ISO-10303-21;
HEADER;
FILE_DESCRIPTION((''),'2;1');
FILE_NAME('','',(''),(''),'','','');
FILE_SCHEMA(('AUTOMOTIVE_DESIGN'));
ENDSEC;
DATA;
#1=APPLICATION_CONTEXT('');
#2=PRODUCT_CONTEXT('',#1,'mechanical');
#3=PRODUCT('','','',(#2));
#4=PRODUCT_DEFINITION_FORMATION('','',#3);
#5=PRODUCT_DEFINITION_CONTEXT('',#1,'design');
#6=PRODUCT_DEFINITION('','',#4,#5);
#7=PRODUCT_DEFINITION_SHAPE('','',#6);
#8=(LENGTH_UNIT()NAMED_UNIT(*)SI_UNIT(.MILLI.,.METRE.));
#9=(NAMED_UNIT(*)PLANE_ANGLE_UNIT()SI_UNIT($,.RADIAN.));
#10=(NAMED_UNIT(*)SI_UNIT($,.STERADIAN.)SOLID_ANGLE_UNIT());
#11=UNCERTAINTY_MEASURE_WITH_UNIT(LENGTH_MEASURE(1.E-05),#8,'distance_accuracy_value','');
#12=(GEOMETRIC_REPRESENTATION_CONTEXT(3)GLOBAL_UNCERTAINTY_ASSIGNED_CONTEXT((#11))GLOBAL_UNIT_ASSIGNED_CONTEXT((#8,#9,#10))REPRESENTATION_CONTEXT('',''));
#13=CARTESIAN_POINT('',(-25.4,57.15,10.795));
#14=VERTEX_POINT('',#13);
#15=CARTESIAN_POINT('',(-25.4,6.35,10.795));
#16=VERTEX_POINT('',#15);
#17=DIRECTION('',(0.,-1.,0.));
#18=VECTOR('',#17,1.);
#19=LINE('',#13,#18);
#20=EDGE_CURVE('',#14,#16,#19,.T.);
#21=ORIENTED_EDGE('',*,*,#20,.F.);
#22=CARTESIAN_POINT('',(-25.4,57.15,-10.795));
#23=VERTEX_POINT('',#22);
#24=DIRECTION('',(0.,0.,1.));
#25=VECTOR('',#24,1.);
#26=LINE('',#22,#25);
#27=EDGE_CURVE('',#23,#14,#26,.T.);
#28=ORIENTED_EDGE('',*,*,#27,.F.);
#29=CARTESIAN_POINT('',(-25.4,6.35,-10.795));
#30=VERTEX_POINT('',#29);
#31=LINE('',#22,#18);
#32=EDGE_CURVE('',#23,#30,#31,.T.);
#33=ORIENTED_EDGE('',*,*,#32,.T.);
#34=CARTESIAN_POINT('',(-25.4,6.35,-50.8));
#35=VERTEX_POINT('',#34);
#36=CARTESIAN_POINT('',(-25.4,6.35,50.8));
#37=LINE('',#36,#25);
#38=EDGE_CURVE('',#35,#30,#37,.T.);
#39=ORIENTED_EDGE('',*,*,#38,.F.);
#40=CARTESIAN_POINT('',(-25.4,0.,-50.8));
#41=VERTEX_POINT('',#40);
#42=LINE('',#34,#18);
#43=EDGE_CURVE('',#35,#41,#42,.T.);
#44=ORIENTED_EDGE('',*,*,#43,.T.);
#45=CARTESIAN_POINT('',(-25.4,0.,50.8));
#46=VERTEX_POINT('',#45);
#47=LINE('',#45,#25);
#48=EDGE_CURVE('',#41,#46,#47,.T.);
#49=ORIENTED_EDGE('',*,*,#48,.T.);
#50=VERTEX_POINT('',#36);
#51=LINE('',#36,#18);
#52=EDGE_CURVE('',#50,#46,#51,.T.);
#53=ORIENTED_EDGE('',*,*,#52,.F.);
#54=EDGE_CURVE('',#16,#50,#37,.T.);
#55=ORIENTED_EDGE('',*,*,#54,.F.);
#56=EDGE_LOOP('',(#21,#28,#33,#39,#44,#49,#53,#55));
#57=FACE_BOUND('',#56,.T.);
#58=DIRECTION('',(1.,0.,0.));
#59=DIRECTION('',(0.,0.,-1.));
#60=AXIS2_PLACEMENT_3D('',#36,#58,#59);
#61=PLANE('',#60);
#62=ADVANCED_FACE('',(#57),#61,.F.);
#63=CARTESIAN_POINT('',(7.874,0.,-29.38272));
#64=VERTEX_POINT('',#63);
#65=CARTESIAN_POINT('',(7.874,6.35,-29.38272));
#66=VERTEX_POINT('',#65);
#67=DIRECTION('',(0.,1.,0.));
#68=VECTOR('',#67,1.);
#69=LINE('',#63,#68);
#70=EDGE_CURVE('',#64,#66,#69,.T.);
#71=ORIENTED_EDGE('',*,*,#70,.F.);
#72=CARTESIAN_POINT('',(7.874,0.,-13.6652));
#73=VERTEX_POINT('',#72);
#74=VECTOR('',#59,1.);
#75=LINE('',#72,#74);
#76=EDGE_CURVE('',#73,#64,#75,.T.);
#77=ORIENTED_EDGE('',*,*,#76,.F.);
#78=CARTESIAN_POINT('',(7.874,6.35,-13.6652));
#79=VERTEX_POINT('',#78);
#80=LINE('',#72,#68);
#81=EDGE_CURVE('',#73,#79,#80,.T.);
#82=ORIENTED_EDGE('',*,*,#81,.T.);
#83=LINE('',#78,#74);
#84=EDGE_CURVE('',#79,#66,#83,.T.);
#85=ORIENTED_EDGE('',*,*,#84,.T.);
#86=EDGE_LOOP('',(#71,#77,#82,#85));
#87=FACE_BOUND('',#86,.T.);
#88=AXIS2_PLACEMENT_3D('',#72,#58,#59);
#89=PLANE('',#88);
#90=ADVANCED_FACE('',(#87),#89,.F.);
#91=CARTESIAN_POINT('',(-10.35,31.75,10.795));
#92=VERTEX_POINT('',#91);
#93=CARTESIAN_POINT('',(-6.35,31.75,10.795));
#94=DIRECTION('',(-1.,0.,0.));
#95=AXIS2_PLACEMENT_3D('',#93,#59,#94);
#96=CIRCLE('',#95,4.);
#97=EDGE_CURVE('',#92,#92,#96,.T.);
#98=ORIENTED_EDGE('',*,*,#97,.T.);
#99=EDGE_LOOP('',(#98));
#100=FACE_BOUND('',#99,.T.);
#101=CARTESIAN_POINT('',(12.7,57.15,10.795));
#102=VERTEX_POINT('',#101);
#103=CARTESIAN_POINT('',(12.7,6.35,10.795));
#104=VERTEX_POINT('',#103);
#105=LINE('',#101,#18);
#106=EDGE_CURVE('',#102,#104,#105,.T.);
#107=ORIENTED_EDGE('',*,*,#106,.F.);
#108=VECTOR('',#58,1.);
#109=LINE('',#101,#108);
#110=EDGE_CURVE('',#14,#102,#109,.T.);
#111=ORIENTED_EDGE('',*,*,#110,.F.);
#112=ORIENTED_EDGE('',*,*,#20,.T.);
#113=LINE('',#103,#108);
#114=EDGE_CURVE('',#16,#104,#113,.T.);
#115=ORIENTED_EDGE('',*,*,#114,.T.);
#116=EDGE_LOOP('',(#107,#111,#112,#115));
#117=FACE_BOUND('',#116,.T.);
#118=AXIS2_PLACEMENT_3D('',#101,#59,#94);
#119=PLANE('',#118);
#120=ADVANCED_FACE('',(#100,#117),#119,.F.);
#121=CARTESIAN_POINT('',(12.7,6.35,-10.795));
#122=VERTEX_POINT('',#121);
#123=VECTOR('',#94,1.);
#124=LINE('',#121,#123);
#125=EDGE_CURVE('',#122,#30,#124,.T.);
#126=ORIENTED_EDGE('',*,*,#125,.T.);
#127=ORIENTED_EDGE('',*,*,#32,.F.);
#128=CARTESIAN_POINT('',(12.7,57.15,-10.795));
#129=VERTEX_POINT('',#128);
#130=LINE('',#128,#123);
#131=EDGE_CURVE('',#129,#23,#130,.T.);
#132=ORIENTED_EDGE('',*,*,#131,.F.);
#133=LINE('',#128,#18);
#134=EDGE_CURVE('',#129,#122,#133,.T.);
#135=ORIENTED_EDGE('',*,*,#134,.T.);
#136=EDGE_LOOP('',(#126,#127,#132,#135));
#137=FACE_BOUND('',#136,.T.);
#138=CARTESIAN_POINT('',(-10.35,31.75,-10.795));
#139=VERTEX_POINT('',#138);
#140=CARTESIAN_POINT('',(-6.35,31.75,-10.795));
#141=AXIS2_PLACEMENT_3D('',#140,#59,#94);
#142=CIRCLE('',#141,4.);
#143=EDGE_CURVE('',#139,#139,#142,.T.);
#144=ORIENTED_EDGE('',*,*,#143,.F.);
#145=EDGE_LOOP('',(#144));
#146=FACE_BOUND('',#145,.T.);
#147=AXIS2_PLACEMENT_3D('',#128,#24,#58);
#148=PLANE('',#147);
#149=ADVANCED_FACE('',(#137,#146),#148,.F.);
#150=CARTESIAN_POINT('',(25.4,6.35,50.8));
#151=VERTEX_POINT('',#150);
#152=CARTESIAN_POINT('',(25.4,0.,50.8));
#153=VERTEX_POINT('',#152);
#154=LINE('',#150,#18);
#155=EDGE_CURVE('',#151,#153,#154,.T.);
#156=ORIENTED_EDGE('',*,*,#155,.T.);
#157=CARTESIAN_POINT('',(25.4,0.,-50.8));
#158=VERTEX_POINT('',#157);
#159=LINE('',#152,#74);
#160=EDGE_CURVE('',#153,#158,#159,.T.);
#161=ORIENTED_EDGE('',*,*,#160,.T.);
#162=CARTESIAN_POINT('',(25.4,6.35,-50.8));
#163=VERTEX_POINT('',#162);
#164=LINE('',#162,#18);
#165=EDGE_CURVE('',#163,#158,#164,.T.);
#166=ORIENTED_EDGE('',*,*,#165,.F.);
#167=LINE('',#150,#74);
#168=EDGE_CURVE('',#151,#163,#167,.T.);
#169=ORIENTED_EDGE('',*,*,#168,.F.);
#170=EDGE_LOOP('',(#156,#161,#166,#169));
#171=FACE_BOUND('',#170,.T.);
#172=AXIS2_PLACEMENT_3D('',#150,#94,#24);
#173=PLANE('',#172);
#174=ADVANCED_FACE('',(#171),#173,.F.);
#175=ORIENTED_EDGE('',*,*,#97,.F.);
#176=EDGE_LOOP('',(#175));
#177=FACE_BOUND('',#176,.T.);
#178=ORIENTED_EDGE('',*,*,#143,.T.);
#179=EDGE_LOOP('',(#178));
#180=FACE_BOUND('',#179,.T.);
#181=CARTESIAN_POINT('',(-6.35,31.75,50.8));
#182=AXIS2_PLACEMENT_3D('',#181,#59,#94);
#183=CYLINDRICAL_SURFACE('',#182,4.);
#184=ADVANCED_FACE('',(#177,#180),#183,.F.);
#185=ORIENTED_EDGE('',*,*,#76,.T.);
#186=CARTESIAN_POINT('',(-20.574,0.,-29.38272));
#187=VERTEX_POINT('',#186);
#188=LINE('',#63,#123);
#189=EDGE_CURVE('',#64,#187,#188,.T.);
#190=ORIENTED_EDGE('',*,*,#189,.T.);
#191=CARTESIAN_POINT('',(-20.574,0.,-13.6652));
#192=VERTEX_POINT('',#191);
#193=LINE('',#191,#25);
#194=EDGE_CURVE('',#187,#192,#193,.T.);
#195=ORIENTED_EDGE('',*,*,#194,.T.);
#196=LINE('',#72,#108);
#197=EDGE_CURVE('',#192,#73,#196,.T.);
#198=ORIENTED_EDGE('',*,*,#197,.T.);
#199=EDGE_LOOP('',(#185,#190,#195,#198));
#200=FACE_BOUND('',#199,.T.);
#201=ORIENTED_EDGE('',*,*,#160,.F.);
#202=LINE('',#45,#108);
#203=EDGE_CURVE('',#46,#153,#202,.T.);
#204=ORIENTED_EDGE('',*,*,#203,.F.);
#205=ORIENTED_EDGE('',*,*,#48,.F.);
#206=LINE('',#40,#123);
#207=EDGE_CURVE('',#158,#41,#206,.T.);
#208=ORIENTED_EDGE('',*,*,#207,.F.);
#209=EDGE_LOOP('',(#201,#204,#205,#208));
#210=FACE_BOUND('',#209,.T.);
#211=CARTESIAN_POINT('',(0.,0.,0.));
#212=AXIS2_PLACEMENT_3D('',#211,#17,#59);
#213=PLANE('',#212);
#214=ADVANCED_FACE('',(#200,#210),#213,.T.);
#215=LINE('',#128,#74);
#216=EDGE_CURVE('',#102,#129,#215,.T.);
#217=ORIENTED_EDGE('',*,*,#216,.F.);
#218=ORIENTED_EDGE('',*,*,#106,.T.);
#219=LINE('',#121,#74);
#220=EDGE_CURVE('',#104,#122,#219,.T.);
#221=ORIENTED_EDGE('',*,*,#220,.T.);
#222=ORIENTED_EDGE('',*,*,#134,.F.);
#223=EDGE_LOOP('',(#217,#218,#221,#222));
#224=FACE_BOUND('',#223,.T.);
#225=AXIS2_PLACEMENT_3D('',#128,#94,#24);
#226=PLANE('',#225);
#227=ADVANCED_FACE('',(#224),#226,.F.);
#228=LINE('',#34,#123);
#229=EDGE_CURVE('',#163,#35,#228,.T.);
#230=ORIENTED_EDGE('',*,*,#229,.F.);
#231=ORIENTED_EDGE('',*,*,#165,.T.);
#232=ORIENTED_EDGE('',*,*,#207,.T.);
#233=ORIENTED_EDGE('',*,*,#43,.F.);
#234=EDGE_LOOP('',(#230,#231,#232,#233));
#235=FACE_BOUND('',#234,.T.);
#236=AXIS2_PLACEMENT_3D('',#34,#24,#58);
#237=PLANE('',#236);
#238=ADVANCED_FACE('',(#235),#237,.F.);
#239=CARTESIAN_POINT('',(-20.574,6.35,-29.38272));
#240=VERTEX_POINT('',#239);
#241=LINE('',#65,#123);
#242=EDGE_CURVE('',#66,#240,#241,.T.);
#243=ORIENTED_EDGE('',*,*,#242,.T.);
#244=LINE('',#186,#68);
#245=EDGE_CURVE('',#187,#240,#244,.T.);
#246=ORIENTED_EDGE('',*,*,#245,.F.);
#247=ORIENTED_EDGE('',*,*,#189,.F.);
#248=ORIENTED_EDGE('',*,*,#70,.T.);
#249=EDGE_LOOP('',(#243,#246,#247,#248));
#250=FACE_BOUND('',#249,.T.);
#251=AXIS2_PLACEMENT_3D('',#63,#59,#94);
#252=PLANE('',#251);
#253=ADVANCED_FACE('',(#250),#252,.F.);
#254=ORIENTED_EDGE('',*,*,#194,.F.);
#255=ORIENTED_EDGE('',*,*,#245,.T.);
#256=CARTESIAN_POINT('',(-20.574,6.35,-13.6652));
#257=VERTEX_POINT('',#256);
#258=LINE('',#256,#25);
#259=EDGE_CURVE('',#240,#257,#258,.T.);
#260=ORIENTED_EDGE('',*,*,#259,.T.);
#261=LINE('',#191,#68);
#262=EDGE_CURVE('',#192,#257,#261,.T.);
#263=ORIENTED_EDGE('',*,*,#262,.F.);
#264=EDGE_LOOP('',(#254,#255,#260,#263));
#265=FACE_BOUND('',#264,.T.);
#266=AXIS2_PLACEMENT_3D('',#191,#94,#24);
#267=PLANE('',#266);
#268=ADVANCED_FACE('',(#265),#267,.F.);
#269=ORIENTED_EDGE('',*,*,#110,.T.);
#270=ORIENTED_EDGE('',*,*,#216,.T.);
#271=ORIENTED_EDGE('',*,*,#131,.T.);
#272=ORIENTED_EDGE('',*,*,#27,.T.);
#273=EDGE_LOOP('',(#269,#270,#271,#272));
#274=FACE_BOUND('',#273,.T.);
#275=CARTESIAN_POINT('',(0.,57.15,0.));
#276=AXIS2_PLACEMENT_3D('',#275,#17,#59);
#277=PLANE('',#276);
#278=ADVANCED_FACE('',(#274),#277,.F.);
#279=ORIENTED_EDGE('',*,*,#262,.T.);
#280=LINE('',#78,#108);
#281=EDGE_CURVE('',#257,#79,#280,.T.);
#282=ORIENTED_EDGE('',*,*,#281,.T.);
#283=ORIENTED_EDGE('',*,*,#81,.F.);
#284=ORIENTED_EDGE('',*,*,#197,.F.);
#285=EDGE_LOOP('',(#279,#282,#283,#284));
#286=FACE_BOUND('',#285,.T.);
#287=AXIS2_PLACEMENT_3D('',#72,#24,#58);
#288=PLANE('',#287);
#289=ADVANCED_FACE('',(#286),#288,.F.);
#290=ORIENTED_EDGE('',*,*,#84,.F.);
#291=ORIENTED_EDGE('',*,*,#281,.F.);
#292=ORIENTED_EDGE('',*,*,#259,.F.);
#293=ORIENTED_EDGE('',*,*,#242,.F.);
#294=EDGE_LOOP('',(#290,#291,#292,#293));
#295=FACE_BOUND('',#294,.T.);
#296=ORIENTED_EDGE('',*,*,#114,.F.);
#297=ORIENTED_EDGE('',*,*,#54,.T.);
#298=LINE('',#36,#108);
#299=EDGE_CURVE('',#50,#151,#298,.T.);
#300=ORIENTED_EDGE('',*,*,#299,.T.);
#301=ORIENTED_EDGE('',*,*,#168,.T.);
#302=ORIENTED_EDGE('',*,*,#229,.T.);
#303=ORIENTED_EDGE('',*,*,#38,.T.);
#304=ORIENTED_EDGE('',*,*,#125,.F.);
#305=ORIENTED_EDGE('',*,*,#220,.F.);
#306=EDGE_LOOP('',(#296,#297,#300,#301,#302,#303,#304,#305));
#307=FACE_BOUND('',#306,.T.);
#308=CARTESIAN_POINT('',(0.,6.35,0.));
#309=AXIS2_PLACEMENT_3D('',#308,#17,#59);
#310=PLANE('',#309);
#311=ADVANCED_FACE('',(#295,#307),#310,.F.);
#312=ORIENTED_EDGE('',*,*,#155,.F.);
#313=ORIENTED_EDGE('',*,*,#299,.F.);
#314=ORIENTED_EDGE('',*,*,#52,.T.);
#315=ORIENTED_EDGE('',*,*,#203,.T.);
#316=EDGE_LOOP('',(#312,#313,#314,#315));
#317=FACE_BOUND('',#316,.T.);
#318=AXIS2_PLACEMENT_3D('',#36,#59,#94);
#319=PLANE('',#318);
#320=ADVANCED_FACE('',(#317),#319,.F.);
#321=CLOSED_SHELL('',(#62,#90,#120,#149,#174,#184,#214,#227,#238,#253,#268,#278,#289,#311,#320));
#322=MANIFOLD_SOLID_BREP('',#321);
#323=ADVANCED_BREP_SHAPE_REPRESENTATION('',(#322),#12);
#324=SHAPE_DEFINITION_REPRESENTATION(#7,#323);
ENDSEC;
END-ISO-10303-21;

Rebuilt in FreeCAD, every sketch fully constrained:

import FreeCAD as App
import Part
import Sketcher
from FreeCAD import Vector
Q = App.Units.Quantity


def add_polygon(sketch, points):
    """Adds a closed chain of lines whose ends are joined by coincident constraints."""
    first, n = sketch.GeometryCount, len(points)
    for a, b in zip(points, points[1:] + points[:1]):
        sketch.addGeometry(Part.LineSegment(App.Vector(*a, 0), App.Vector(*b, 0)), False)
    for i in range(n):
        sketch.addConstraint(Sketcher.Constraint("Coincident", first + i, 2, first + (i + 1) % n, 1))

doc = App.newDocument("Part")
params = doc.addObject("Spreadsheet::Sheet", "Params")
for row, (alias, value) in enumerate([
    ("sketch1_width", "2 in"),
    ("sketch1_height", "4 in"),
    ("pad1_length", "0.25 in"),
    ("sketch2_width", "1.5 in"),
    ("sketch2_height", "0.85 in"),
    ("pad2_length", "2 in"),
    ("sketch4_width", "1.12 in"),
], start=1):
    params.set(f"A{row}", alias)
    params.set(f"B{row}", "=" + value)
    params.setAlias(f"B{row}", alias)

body = doc.addObject("PartDesign::Body", "Body")

# Sketch on XZ plane
sketch1 = doc.addObject("Sketcher::SketchObject", "Sketch")
body.addObject(sketch1)
sketch1.AttachmentSupport = (doc.XZ_Plane, [""])
sketch1.MapMode = "FlatFace"
add_polygon(sketch1, [(-25, -51), (-25, 51), (25, 51), (25, -51)])  # lines 0-3
sketch1.addConstraint(Sketcher.Constraint("Vertical", 0))
sketch1.addConstraint(Sketcher.Constraint("Horizontal", 1))
sketch1.addConstraint(Sketcher.Constraint("Vertical", 2))
sketch1.addConstraint(Sketcher.Constraint("Horizontal", 3))
sketch1.addConstraint(Sketcher.Constraint("Symmetric", 0, 2, 2, 2, -1, 1))
sketch1.addConstraint(Sketcher.Constraint("DistanceX", 1, 1, 1, 2, Q("2 in")))
sketch1.addConstraint(Sketcher.Constraint("DistanceY", 0, 1, 0, 2, Q("4 in")))
sketch1.setExpression("Constraints[9]", "Params.sketch1_width")
sketch1.setExpression("Constraints[10]", "Params.sketch1_height")
pad1 = doc.addObject("PartDesign::Pad", "Pad")
body.addObject(pad1)
pad1.Profile = sketch1
pad1.setExpression("Length", "Params.pad1_length")
pad1.Reversed = True

# Sketch on XZ plane
sketch2 = doc.addObject("Sketcher::SketchObject", "Sketch001")
body.addObject(sketch2)
sketch2.AttachmentSupport = (doc.XZ_Plane, [""])
sketch2.MapMode = "FlatFace"
sketch2.AttachmentOffset = App.Placement(Vector(0, 0, -0.25 * 25.4), App.Rotation())
add_polygon(sketch2, [(-25, -11), (-25, 11), (13, 11), (13, -11)])  # lines 0-3
sketch2.addConstraint(Sketcher.Constraint("Vertical", 0))
sketch2.addConstraint(Sketcher.Constraint("Horizontal", 1))
sketch2.addConstraint(Sketcher.Constraint("Vertical", 2))
sketch2.addConstraint(Sketcher.Constraint("Horizontal", 3))
sketch2.addConstraint(Sketcher.Constraint("DistanceX", 1, 1, 1, 2, Q("1.5 in")))
sketch2.addConstraint(Sketcher.Constraint("DistanceX", 0, 2, -1, 1, Q("1 in")))
sketch2.addConstraint(Sketcher.Constraint("DistanceY", 0, 1, 0, 2, Q("0.85 in")))
sketch2.addConstraint(Sketcher.Constraint("DistanceY", -1, 1, 0, 2, Q("0.425 in")))
sketch2.setExpression("Constraints[8]", "Params.sketch2_width")
sketch2.setExpression("Constraints[10]", "Params.sketch2_height")
pad2 = doc.addObject("PartDesign::Pad", "Pad001")
body.addObject(pad2)
pad2.Profile = sketch2
pad2.setExpression("Length", "Params.pad2_length")
pad2.Reversed = True

# Sketch on XY plane
sketch3 = doc.addObject("Sketcher::SketchObject", "Sketch002")
body.addObject(sketch3)
sketch3.AttachmentSupport = (doc.XY_Plane, [""])
sketch3.MapMode = "FlatFace"
sketch3.AttachmentOffset = App.Placement(Vector(0, 0, -0.425 * 25.4), App.Rotation())
sketch3.addGeometry(Part.Circle(Vector(-6.3, 31.8, 0), Vector(0, 0, 1), 4), False)
sketch3.addConstraint(Sketcher.Constraint("Diameter", 0, Q("8 mm")))
sketch3.addConstraint(Sketcher.Constraint("DistanceX", 0, 3, -1, 1, Q("0.25 in")))
sketch3.addConstraint(Sketcher.Constraint("DistanceY", -1, 1, 0, 3, Q("1.25 in")))
pocket1 = doc.addObject("PartDesign::Pocket", "Pocket")
body.addObject(pocket1)
pocket1.Profile = sketch3
pocket1.Type = "ThroughAll"
pocket1.Reversed = True

# Sketch on XZ plane
sketch4 = doc.addObject("Sketcher::SketchObject", "Sketch003")
body.addObject(sketch4)
sketch4.AttachmentSupport = (doc.XZ_Plane, [""])
sketch4.MapMode = "FlatFace"
sketch4.AttachmentOffset = App.Placement(Vector(0, 0, -0.25 * 25.4), App.Rotation())
add_polygon(sketch4, [(-21, -29), (-21, -14), (8, -14), (8, -29)])  # lines 0-3
sketch4.addConstraint(Sketcher.Constraint("Vertical", 0))
sketch4.addConstraint(Sketcher.Constraint("Horizontal", 1))
sketch4.addConstraint(Sketcher.Constraint("Vertical", 2))
sketch4.addConstraint(Sketcher.Constraint("Horizontal", 3))
sketch4.addConstraint(Sketcher.Constraint("DistanceX", 1, 1, 1, 2, Q("1.12 in")))
sketch4.addConstraint(Sketcher.Constraint("DistanceX", 0, 2, -1, 1, Q("0.81 in")))
sketch4.addConstraint(Sketcher.Constraint("DistanceY", 0, 1, 0, 2, Q("0.6188 in")))
sketch4.addConstraint(Sketcher.Constraint("DistanceY", 0, 2, -1, 1, Q("0.538 in")))
sketch4.setExpression("Constraints[8]", "Params.sketch4_width")
pocket2 = doc.addObject("PartDesign::Pocket", "Pocket001")
body.addObject(pocket2)
pocket2.Profile = sketch4
pocket2.Type = "ThroughAll"
pocket2.Reversed = True

doc.recompute()
